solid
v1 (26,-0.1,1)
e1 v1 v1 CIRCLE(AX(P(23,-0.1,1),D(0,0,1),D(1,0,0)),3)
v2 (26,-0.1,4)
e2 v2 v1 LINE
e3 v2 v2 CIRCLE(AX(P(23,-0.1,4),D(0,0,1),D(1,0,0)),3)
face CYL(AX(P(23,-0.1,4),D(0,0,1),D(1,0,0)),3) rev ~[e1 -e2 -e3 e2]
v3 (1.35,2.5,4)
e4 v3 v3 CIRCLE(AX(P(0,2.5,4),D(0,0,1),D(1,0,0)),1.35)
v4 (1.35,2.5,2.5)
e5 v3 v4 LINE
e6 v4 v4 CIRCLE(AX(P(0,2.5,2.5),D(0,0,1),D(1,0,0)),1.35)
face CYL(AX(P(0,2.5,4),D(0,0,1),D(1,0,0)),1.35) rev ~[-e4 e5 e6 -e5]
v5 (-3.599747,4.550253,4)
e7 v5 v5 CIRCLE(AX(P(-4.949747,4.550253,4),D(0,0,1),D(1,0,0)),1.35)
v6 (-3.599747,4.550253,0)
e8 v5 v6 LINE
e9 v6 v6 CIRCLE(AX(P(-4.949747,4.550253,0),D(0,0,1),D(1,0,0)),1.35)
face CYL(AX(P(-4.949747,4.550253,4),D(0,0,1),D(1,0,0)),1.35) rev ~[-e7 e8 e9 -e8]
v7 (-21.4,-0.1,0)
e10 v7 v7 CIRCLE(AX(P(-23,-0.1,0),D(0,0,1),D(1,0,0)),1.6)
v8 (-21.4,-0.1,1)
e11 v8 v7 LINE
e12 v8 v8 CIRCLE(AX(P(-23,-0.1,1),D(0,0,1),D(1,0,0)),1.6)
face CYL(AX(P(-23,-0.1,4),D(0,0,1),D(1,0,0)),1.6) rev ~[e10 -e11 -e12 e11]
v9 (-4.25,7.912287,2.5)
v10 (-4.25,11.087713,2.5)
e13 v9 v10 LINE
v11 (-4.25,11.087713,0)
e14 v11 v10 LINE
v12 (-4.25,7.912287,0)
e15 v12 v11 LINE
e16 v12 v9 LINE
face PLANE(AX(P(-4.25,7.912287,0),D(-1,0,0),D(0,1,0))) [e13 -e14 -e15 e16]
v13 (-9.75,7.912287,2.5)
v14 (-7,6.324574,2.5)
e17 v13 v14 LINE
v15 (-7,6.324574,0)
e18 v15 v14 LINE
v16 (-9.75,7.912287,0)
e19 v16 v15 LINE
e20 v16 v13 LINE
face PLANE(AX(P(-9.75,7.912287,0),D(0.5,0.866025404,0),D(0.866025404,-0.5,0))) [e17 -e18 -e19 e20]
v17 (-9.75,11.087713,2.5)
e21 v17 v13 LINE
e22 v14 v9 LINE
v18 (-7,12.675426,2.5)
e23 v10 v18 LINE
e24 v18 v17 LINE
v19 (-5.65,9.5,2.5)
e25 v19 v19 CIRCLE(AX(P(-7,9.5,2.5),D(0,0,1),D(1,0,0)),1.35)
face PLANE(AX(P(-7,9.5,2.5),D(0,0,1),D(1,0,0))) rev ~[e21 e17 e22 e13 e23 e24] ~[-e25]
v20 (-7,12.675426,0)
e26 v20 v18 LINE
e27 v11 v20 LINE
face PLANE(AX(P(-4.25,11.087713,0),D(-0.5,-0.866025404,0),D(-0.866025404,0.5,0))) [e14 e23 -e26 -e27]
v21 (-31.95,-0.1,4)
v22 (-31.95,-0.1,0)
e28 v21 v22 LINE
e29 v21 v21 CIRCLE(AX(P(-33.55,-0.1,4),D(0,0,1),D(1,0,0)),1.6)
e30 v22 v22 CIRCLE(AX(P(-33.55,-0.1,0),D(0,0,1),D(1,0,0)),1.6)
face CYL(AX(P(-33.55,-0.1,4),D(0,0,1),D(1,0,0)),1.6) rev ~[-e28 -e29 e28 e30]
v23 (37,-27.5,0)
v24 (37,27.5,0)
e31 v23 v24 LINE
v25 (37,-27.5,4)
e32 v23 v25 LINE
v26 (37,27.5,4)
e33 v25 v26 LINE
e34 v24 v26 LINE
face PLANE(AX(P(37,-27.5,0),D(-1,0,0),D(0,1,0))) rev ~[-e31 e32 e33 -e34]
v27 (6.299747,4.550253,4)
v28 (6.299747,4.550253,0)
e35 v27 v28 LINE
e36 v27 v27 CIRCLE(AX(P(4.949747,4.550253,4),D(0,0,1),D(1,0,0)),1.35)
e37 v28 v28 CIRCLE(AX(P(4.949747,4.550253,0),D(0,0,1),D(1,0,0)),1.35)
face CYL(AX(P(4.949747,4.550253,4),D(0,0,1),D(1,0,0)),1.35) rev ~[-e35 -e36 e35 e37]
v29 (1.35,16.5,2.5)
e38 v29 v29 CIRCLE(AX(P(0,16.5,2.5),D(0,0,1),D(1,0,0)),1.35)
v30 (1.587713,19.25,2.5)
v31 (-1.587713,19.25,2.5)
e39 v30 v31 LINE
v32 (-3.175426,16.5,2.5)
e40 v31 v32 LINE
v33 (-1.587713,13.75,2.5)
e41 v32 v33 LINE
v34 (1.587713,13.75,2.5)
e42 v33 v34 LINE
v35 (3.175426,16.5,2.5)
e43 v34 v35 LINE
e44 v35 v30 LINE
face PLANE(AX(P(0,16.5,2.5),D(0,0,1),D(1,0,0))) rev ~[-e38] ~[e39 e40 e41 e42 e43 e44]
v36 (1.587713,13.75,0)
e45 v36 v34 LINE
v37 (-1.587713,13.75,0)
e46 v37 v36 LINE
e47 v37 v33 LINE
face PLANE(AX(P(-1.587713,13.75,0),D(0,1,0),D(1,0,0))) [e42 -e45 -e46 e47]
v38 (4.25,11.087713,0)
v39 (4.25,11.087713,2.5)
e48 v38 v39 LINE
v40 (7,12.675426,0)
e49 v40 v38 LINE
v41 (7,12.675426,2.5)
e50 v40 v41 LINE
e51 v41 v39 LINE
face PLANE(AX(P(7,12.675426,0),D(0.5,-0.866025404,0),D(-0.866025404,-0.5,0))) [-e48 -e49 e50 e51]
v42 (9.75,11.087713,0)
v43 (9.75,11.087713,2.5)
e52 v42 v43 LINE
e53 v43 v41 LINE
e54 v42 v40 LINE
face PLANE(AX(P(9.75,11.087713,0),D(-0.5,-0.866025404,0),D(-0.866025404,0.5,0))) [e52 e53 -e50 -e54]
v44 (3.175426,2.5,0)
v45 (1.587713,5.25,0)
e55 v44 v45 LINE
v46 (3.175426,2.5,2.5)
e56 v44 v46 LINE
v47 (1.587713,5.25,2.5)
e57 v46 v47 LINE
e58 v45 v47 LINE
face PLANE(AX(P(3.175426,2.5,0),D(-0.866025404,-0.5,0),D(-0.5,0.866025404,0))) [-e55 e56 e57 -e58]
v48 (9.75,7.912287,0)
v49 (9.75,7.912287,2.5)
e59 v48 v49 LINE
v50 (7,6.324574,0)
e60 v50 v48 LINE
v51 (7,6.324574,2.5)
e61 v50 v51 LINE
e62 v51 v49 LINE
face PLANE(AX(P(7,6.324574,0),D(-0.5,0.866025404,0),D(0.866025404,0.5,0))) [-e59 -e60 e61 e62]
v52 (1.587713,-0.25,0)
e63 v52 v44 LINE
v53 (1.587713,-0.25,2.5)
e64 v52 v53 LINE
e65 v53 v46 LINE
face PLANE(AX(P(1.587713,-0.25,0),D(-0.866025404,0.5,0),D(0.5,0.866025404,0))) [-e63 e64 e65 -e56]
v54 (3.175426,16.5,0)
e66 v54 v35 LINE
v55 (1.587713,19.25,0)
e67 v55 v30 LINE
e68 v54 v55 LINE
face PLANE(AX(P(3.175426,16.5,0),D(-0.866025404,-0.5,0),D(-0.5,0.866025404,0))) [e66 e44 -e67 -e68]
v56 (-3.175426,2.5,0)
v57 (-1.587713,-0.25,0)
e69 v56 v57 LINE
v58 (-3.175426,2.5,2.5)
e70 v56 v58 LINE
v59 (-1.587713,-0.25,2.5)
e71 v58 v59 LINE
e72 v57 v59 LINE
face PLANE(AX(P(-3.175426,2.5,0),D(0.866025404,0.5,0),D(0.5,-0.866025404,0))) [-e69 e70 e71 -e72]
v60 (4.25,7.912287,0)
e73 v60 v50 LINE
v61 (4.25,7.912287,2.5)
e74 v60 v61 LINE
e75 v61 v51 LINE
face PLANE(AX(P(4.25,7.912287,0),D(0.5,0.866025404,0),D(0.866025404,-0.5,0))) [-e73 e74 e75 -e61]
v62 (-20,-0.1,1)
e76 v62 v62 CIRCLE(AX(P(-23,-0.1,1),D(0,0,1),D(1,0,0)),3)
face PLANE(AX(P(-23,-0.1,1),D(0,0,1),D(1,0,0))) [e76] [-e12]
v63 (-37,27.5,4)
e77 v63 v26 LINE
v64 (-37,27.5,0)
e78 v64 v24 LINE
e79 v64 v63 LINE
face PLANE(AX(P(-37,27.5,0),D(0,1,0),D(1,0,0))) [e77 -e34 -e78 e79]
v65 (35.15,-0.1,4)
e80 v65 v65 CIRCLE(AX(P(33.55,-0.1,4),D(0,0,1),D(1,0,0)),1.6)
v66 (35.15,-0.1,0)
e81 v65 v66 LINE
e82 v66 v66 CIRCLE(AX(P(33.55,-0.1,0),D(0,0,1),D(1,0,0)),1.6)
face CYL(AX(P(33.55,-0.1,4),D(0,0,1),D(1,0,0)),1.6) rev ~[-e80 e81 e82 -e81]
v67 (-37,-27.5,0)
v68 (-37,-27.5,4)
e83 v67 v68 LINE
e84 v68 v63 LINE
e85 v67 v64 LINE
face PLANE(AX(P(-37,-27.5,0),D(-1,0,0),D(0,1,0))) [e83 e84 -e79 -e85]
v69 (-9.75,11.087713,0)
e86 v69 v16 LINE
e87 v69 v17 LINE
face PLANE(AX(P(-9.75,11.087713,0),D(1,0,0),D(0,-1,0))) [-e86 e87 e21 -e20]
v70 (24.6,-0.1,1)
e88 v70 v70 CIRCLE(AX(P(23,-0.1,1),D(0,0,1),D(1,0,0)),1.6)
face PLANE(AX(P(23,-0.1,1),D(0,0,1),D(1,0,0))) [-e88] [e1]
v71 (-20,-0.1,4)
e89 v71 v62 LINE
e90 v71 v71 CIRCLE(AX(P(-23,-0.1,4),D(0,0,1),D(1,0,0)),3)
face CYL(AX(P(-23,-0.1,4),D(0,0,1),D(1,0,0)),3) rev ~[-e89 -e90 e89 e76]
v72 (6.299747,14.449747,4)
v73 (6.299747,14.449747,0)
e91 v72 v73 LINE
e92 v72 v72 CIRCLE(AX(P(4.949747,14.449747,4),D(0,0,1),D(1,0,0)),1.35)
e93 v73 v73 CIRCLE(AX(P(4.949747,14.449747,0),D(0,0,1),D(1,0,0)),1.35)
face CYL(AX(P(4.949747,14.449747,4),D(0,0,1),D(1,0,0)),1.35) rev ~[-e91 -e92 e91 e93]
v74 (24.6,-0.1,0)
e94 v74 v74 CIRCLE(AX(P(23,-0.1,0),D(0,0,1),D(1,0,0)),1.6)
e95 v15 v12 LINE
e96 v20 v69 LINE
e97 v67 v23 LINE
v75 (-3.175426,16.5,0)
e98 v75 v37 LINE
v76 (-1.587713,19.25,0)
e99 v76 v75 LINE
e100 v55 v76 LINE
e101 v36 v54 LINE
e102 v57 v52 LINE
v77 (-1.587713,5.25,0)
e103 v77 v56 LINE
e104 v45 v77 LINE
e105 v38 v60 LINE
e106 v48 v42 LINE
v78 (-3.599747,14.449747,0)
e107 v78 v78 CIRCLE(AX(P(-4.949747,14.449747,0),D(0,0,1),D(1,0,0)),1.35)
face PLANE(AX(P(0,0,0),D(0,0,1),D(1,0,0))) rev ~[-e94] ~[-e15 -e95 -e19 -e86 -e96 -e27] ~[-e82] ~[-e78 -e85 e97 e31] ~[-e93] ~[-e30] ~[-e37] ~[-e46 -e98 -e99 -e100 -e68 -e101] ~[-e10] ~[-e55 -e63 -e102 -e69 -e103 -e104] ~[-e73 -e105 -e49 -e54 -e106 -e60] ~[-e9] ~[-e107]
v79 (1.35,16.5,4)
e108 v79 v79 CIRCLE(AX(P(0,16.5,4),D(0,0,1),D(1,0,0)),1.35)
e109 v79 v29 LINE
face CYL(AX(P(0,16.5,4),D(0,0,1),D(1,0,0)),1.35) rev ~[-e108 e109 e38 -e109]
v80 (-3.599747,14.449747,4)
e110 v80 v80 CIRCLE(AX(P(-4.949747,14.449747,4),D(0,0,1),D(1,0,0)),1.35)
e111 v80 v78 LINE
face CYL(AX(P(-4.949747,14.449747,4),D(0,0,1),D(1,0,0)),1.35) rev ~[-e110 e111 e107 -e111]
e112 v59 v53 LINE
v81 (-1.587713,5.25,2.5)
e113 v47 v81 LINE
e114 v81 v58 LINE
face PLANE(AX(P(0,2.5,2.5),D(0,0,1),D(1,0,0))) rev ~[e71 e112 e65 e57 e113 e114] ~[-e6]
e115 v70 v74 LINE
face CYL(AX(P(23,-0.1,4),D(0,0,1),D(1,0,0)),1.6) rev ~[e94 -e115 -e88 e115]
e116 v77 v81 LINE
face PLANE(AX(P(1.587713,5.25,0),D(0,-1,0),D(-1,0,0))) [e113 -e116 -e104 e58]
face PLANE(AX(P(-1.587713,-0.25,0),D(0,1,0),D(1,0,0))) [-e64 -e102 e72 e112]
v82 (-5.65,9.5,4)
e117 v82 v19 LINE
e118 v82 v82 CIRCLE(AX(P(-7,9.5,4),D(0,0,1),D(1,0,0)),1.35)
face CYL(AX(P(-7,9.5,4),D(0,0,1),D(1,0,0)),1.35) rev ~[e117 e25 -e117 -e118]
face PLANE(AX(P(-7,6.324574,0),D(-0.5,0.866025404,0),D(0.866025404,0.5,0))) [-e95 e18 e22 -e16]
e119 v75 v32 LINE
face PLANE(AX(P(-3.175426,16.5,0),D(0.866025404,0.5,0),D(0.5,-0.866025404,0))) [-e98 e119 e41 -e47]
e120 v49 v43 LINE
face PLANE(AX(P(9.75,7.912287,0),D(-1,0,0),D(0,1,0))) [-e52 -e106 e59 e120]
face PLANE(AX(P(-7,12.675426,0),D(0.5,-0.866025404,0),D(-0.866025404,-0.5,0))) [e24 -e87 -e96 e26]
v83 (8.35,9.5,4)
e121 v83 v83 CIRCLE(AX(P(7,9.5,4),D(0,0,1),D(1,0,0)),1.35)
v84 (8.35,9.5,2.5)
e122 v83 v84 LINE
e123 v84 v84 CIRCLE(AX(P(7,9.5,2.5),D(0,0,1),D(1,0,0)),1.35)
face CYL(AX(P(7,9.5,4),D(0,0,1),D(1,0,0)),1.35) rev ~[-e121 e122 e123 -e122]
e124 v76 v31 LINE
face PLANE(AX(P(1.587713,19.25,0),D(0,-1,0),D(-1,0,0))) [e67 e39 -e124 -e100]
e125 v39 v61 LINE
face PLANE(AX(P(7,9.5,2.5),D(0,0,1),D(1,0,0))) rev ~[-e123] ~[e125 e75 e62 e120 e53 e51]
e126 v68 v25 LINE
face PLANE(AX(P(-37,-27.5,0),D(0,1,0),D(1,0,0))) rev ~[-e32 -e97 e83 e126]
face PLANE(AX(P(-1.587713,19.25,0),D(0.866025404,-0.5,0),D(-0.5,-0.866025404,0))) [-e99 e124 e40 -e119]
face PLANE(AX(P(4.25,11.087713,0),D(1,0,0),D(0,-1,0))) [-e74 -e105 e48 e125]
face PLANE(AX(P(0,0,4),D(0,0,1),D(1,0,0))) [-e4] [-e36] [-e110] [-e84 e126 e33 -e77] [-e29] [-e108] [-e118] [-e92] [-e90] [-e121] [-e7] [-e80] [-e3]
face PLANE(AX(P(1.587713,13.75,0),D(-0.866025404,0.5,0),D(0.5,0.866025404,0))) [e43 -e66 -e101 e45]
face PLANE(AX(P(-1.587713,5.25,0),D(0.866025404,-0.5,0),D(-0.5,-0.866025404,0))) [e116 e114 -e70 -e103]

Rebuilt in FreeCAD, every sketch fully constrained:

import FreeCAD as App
import Part
import Sketcher
from FreeCAD import Vector
Q = App.Units.Quantity


def add_polygon(sketch, points):
    """Adds a closed chain of lines whose ends are joined by coincident constraints."""
    first, n = sketch.GeometryCount, len(points)
    for a, b in zip(points, points[1:] + points[:1]):
        sketch.addGeometry(Part.LineSegment(App.Vector(*a, 0), App.Vector(*b, 0)), False)
    for i in range(n):
        sketch.addConstraint(Sketcher.Constraint("Coincident", first + i, 2, first + (i + 1) % n, 1))

doc = App.newDocument("Part")
body = doc.addObject("PartDesign::Body", "Body")

# Sketch on XY plane
sketch1 = doc.addObject("Sketcher::SketchObject", "Sketch")
body.addObject(sketch1)
sketch1.AttachmentSupport = (doc.XY_Plane, [""])
sketch1.MapMode = "FlatFace"
add_polygon(sketch1, [(-37, 28), (-37, -28), (37, -28), (37, 28)])  # lines 0-3
sketch1.addConstraint([
    Sketcher.Constraint("Vertical", 0),
    Sketcher.Constraint("Horizontal", 1),
    Sketcher.Constraint("Vertical", 2),
    Sketcher.Constraint("Horizontal", 3),
    Sketcher.Constraint("Symmetric", 0, 2, 2, 2, -1, 1),
    Sketcher.Constraint("DistanceX", 1, 1, 1, 2, Q("74 mm")),
    Sketcher.Constraint("DistanceY", 0, 2, 0, 1, Q("55 mm")),
])
pad1 = doc.addObject("PartDesign::Pad", "Pad")
body.addObject(pad1)
pad1.Profile = sketch1
pad1.Length = 4

# Sketch on XY plane
sketch2 = doc.addObject("Sketcher::SketchObject", "Sketch001")
body.addObject(sketch2)
sketch2.AttachmentSupport = (doc.XY_Plane, [""])
sketch2.MapMode = "FlatFace"
sketch2.AttachmentOffset = App.Placement(Vector(0, 0, 4), App.Rotation())
sketch2.addGeometry([
    Part.Circle(Vector(-33.5, -0.1, 0), Vector(0, 0, 1), 1.6),
    Part.Circle(Vector(33.5, -0.1, 0), Vector(0, 0, 1), 1.6),
    Part.Circle(Vector(-23, -0.1, 0), Vector(0, 0, 1), 1.6),
    Part.Circle(Vector(23, -0.1, 0), Vector(0, 0, 1), 1.6),
], False)
sketch2.addConstraint([
    Sketcher.Constraint("Equal", 0, 1),
    Sketcher.Constraint("Equal", 1, 2),
    Sketcher.Constraint("Equal", 2, 3),
    Sketcher.Constraint("Symmetric", 0, 3, 1, 3, -2),
    Sketcher.Constraint("Symmetric", 2, 3, 3, 3, -2),
    Sketcher.Constraint("Horizontal", 1, 3, 2, 3),
    Sketcher.Constraint("Diameter", 0, Q("3.2 mm")),
    Sketcher.Constraint("DistanceX", 2, 3, -1, 1, Q("23 mm")),
    Sketcher.Constraint("DistanceY", 0, 3, -1, 1, Q("0.1 mm")),
    Sketcher.Constraint("DistanceX", 0, 3, 1, 3, Q("67.1 mm")),
])
pocket1 = doc.addObject("PartDesign::Pocket", "Pocket")
body.addObject(pocket1)
pocket1.Profile = sketch2
pocket1.Type = "ThroughAll"

# Sketch on XY plane
sketch3 = doc.addObject("Sketcher::SketchObject", "Sketch002")
body.addObject(sketch3)
sketch3.AttachmentSupport = (doc.XY_Plane, [""])
sketch3.MapMode = "FlatFace"
sketch3.AttachmentOffset = App.Placement(Vector(0, 0, 4), App.Rotation())
sketch3.addGeometry([
    Part.Circle(Vector(0, 2.5, 0), Vector(0, 0, 1), 1.4),  # 0
    Part.Circle(Vector(4.9, 4.6, 0), Vector(0, 0, 1), 1.4),  # 1
    Part.Circle(Vector(7, 9.5, 0), Vector(0, 0, 1), 1.4),  # 2
    Part.Circle(Vector(4.9, 14.4, 0), Vector(0, 0, 1), 1.4),  # 3
    Part.Circle(Vector(-4.9, 14.4, 0), Vector(0, 0, 1), 1.4),  # 4
    Part.Circle(Vector(-7, 9.5, 0), Vector(0, 0, 1), 1.4),  # 5
    Part.Circle(Vector(-4.9, 4.6, 0), Vector(0, 0, 1), 1.4),  # 6
    Part.Circle(Vector(0, 16.5, 0), Vector(0, 0, 1), 1.4),  # 7
], False)
sketch3.addConstraint([
    Sketcher.Constraint("Equal", 0, 1),
    Sketcher.Constraint("Equal", 1, 2),
    Sketcher.Constraint("Equal", 2, 3),
    Sketcher.Constraint("Equal", 3, 4),
    Sketcher.Constraint("Equal", 4, 5),
    Sketcher.Constraint("Equal", 5, 6),
    Sketcher.Constraint("Equal", 6, 7),
    Sketcher.Constraint("Symmetric", 3, 3, 4, 3, -2),
    Sketcher.Constraint("Symmetric", 2, 3, 5, 3, -2),
    Sketcher.Constraint("Symmetric", 1, 3, 6, 3, -2),
    Sketcher.Constraint("PointOnObject", 0, 3, -2),
    Sketcher.Constraint("PointOnObject", 7, 3, -2),
    Sketcher.Constraint("Vertical", 1, 3, 3, 3),
    Sketcher.Constraint("Diameter", 0, Q("2.7 mm")),
    Sketcher.Constraint("DistanceX", -1, 1, 2, 3, Q("7 mm")),
    Sketcher.Constraint("DistanceY", 0, 3, 2, 3, Q("7 mm")),
    Sketcher.Constraint("DistanceY", 2, 3, 7, 3, Q("7 mm")),
    Sketcher.Constraint("DistanceY", -1, 1, 0, 3, Q("2.5 mm")),
    Sketcher.Constraint("DistanceX", -1, 1, 1, 3, Q("4.949747 mm")),
    Sketcher.Constraint("DistanceY", -1, 1, 1, 3, Q("4.550253 mm")),
    Sketcher.Constraint("DistanceY", -1, 1, 3, 3, Q("14.449747 mm")),
])
pocket2 = doc.addObject("PartDesign::Pocket", "Pocket001")
body.addObject(pocket2)
pocket2.Profile = sketch3
pocket2.Type = "ThroughAll"

# Sketch on XY plane
sketch4 = doc.addObject("Sketcher::SketchObject", "Sketch003")
body.addObject(sketch4)
sketch4.AttachmentSupport = (doc.XY_Plane, [""])
sketch4.MapMode = "FlatFace"
add_polygon(sketch4, [(-1.6, 19.2), (1.6, 19.2), (3.2, 16.5), (1.6, 13.8), (-1.6, 13.8), (-3.2, 16.5)])  # lines 0-5
add_polygon(sketch4, [(-7, 6.3), (-9.8, 7.9), (-9.8, 11.1), (-7, 12.7), (-4.2, 11.1), (-4.2, 7.9)])  # lines 6-11
add_polygon(sketch4, [(3.2, 2.5), (1.6, -0.2), (-1.6, -0.2), (-3.2, 2.5), (-1.6, 5.2), (1.6, 5.2)])  # lines 12-17
add_polygon(sketch4, [(7, 12.7), (9.8, 11.1), (9.8, 7.9), (7, 6.3), (4.2, 7.9), (4.2, 11.1)])  # lines 18-23
sketch4.addConstraint([
    Sketcher.Constraint("Horizontal", 0),
    Sketcher.Constraint("Horizontal", 3),
    Sketcher.Constraint("Vertical", 7),
    Sketcher.Constraint("Vertical", 10),
    Sketcher.Constraint("Horizontal", 13),
    Sketcher.Constraint("Horizontal", 16),
    Sketcher.Constraint("Vertical", 19),
    Sketcher.Constraint("Vertical", 22),
    Sketcher.Constraint("Symmetric", 1, 2, 4, 2, -2),
    Sketcher.Constraint("Symmetric", 14, 2, 17, 2, -2),
    Sketcher.Constraint("Symmetric", 7, 2, 18, 2, -2),
    Sketcher.Constraint("Symmetric", 11, 2, 20, 2, -2),
    Sketcher.Constraint("Symmetric", 10, 2, 21, 2, -2),
    Sketcher.Constraint("Symmetric", 8, 2, 23, 2, -2),
    Sketcher.Constraint("Parallel", 1, 4),
    Sketcher.Constraint("Parallel", 2, 5),
    Sketcher.Constraint("Perpendicular", 5, 6),
    Sketcher.Constraint("Perpendicular", 4, 8),
    Sketcher.Constraint("Parallel", 6, 9),
    Sketcher.Constraint("Parallel", 8, 11),
    Sketcher.Constraint("Perpendicular", 9, 12),
    Sketcher.Constraint("Perpendicular", 11, 14),
    Sketcher.Constraint("Parallel", 12, 15),
    Sketcher.Constraint("Parallel", 14, 17),
    Sketcher.Constraint("Perpendicular", 15, 18),
    Sketcher.Constraint("Perpendicular", 17, 20),
    Sketcher.Constraint("Parallel", 20, 23),
    Sketcher.Constraint("Horizontal", 7, 2, 9, 2),
    Sketcher.Constraint("Horizontal", 6, 2, 10, 2),
    Sketcher.Constraint("Vertical", 0, 2, 2, 2),
    Sketcher.Constraint("Vertical", 2, 2, 12, 2),
    Sketcher.Constraint("Vertical", 4, 2, 14, 2),
    Sketcher.Constraint("Vertical", 13, 2, 15, 2),
    Sketcher.Constraint("Equal", 16, 7),
    Sketcher.Constraint("Equal", 5, 6),
    Sketcher.Constraint("Angle", 1, Q("-60 deg")),
    Sketcher.Constraint("DistanceX", 8, 2, -1, 1, Q("7 mm")),
    Sketcher.Constraint("DistanceY", 12, 2, 2, 2, Q("14 mm")),
    Sketcher.Constraint("DistanceY", -1, 1, 1, 2, Q("16.5 mm")),
    Sketcher.Constraint("DistanceY", 2, 2, 0, 2, Q("5.5 mm")),
    Sketcher.Constraint("DistanceX", 0, 1, 0, 2, Q("3.175426 mm")),
    Sketcher.Constraint("DistanceY", -1, 1, 6, 2, Q("7.912287 mm")),
])
pocket3 = doc.addObject("PartDesign::Pocket", "Pocket002")
body.addObject(pocket3)
pocket3.Profile = sketch4
pocket3.Length = 2.5
pocket3.Reversed = True

# Sketch on XY plane
sketch5 = doc.addObject("Sketcher::SketchObject", "Sketch004")
body.addObject(sketch5)
sketch5.AttachmentSupport = (doc.XY_Plane, [""])
sketch5.MapMode = "FlatFace"
sketch5.AttachmentOffset = App.Placement(Vector(0, 0, 4), App.Rotation())
sketch5.addGeometry([
    Part.Circle(Vector(23, -0.1, 0), Vector(0, 0, 1), 3),
    Part.Circle(Vector(-23, -0.1, 0), Vector(0, 0, 1), 3),
], False)
sketch5.addConstraint([
    Sketcher.Constraint("Equal", 0, 1),
    Sketcher.Constraint("Symmetric", 0, 3, 1, 3, -2),
    Sketcher.Constraint("Diameter", 0, Q("6 mm")),
    Sketcher.Constraint("DistanceX", -1, 1, 0, 3, Q("23 mm")),
    Sketcher.Constraint("DistanceY", 0, 3, -1, 1, Q("0.1 mm")),
])
pocket4 = doc.addObject("PartDesign::Pocket", "Pocket003")
body.addObject(pocket4)
pocket4.Profile = sketch5
pocket4.Length = 3

doc.recompute()
